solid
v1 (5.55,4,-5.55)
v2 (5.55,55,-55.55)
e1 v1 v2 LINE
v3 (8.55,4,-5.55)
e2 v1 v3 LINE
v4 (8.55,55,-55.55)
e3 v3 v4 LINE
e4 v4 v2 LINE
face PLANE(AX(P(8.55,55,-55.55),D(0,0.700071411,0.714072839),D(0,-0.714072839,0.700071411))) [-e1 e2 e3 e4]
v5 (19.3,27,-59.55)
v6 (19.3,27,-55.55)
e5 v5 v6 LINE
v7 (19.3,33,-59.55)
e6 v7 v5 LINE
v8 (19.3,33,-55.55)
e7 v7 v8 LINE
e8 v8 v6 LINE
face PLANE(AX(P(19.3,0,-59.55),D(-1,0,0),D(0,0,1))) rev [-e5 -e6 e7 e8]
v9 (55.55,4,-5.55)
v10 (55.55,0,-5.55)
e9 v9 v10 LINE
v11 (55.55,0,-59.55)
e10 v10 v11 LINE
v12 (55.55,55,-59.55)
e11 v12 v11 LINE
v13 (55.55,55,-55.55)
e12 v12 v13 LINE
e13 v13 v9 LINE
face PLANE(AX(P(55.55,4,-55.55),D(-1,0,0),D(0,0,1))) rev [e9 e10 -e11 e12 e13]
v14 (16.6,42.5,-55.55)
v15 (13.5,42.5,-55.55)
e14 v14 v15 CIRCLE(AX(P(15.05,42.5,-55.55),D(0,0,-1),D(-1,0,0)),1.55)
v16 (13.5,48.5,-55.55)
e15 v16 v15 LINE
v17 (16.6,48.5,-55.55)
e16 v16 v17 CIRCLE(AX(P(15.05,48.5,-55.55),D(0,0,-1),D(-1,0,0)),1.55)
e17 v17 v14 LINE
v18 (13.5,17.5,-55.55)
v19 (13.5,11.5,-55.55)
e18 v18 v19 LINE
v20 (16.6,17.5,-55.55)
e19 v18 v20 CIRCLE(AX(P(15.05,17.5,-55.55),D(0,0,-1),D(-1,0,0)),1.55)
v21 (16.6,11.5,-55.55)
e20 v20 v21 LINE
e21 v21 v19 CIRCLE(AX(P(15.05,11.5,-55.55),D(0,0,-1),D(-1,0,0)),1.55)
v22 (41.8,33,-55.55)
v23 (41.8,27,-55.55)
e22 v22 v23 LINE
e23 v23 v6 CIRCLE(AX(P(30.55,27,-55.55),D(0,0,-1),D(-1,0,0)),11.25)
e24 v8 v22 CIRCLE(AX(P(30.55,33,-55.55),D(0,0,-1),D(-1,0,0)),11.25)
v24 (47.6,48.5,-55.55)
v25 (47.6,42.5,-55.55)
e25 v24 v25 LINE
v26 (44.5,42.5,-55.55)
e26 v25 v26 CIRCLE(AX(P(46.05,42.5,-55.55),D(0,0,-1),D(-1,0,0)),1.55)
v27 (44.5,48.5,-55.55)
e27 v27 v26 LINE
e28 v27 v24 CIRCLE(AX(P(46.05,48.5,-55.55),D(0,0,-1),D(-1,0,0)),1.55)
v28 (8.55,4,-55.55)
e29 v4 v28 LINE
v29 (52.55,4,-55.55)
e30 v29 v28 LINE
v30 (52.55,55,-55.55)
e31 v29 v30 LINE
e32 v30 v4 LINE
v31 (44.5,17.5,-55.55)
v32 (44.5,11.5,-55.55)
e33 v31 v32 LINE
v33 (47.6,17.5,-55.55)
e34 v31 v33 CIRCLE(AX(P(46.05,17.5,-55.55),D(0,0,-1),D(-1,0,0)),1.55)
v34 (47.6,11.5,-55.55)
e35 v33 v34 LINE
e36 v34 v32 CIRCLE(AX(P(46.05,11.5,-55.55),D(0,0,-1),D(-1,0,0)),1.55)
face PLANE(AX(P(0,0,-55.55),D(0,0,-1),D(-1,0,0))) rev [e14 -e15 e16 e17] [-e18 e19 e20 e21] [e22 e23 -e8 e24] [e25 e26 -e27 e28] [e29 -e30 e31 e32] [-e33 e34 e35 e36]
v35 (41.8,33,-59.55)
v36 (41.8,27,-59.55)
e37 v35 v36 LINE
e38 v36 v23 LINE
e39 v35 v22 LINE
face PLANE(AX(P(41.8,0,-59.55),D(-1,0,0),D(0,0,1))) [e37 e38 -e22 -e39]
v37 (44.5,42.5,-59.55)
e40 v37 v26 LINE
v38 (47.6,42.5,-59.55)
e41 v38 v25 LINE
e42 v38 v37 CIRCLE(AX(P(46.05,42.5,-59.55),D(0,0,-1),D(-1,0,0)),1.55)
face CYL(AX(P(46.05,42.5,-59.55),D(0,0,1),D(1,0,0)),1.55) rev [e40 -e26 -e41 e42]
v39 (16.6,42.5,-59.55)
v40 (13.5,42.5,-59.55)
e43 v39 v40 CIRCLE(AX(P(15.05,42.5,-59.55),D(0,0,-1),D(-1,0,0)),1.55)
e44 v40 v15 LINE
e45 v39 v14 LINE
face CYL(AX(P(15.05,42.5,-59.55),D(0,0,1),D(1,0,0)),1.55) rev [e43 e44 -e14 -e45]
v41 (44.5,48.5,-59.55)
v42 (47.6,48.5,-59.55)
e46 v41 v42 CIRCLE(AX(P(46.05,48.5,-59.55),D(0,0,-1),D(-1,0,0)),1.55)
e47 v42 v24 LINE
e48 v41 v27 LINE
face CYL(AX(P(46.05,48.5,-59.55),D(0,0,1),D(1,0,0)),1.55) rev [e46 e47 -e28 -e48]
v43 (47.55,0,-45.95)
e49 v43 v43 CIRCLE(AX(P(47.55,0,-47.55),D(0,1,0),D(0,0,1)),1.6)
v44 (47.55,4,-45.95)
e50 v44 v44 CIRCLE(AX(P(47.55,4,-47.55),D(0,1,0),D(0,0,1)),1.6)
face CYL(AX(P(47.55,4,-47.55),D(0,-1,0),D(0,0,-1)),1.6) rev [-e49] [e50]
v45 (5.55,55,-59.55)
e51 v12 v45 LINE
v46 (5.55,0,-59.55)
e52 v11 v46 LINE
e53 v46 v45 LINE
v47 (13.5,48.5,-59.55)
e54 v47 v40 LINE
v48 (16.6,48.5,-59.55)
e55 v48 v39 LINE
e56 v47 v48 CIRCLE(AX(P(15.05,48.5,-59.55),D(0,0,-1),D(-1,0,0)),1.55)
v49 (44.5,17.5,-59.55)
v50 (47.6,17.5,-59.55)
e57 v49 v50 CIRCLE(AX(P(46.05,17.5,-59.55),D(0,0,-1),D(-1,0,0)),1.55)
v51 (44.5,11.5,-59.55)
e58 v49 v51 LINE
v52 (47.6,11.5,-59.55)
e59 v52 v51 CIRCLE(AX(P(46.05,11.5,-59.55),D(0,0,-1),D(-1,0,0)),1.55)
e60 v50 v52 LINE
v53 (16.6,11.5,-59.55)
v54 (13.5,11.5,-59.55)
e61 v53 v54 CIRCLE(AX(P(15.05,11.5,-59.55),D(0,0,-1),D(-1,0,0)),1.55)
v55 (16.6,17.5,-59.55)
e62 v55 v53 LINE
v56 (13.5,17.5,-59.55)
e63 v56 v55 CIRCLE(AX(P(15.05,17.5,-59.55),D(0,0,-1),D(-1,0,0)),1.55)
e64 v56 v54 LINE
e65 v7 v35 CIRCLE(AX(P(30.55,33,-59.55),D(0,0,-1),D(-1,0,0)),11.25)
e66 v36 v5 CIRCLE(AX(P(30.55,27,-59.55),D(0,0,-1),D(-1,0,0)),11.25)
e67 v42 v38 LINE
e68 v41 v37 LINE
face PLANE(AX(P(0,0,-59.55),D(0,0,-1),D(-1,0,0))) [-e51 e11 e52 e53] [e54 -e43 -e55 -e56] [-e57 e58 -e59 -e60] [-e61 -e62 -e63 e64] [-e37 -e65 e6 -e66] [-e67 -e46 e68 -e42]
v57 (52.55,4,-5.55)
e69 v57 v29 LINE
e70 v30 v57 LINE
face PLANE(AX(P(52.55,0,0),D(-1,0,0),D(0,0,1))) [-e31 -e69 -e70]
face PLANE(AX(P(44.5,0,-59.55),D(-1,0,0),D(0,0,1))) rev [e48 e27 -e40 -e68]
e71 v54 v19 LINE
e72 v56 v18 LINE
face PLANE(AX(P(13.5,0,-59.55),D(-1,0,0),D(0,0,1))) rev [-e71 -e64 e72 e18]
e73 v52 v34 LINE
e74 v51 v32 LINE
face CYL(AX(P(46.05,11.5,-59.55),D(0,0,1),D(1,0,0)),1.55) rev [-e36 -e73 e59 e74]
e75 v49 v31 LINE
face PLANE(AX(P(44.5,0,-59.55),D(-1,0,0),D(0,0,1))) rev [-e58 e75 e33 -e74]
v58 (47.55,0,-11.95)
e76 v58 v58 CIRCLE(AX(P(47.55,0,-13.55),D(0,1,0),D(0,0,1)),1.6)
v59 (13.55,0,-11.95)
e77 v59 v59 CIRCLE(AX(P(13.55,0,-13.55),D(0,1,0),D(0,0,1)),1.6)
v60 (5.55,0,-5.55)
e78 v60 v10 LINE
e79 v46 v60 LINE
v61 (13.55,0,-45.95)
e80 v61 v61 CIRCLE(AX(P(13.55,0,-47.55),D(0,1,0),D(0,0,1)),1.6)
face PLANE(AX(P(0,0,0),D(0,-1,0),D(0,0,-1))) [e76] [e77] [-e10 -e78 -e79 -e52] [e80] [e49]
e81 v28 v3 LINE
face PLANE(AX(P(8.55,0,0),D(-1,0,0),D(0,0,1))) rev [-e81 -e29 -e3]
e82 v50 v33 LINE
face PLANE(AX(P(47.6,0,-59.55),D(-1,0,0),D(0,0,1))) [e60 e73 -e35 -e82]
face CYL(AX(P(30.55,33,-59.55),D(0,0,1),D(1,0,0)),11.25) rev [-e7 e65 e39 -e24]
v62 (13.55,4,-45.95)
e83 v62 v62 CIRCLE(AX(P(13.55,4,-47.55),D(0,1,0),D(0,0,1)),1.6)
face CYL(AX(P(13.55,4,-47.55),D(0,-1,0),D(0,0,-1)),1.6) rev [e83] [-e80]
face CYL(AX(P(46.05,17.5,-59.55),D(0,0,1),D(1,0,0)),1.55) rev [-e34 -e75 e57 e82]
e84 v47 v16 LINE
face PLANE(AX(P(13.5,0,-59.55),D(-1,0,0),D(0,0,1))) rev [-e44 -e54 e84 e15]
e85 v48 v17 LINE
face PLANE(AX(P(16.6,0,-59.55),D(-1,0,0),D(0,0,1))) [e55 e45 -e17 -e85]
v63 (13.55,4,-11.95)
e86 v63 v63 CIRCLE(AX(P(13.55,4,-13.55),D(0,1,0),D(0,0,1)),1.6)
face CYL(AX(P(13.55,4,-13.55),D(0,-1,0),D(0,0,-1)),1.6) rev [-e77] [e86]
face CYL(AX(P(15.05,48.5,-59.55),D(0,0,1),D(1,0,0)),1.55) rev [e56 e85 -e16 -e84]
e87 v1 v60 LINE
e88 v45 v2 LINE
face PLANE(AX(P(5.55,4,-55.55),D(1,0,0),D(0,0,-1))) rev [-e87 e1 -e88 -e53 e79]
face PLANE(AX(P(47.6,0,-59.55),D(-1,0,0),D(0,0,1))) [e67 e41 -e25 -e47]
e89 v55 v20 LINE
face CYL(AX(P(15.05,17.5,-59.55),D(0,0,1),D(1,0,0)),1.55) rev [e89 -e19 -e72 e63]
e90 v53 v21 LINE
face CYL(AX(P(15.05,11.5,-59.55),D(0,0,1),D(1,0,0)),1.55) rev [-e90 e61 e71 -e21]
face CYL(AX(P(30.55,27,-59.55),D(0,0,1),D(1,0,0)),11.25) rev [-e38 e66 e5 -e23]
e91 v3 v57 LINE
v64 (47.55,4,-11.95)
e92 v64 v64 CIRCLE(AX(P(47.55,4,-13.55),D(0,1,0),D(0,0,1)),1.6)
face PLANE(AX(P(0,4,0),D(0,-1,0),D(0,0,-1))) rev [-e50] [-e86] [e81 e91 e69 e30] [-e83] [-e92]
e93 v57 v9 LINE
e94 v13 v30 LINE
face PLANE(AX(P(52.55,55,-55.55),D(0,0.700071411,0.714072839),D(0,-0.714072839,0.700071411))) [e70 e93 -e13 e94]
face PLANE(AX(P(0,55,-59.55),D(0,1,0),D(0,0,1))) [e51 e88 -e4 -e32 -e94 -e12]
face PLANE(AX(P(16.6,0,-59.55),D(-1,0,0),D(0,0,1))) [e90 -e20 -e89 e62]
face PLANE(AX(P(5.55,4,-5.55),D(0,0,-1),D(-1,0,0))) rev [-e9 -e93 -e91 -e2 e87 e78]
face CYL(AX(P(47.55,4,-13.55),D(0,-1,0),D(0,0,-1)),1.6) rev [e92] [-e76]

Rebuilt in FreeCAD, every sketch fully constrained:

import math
import FreeCAD as App
import Part
import Sketcher

V = App.Vector

doc = App.newDocument("Part")
body = doc.addObject("PartDesign::Body", "Body")

# Sketch on XZ plane
sketch1 = body.newObject("Sketcher::SketchObject", "Sketch")
sketch1.AttachmentSupport = (doc.getObject("XZ_Plane"), [""])
sketch1.MapMode = "FlatFace"
sketch1.addGeometry([
    Part.LineSegment(V(5.5, -55.5, 0), V(5.5, -5.5, 0)),  # 0
    Part.LineSegment(V(5.5, -5.5, 0), V(55.5, -5.5, 0)),  # 1
    Part.LineSegment(V(55.5, -5.5, 0), V(55.5, -55.5, 0)),  # 2
    Part.LineSegment(V(55.5, -55.5, 0), V(5.5, -55.5, 0)),  # 3
    Part.Circle(V(13.6, -13.6, 0), V(0, 0, 1), 1.6),  # 4
    Part.Circle(V(47.5, -13.6, 0), V(0, 0, 1), 1.6),  # 5
    Part.Circle(V(13.6, -47.5, 0), V(0, 0, 1), 1.6),  # 6
    Part.Circle(V(47.5, -47.5, 0), V(0, 0, 1), 1.6),  # 7
], False)
sketch1.addConstraint([
    Sketcher.Constraint("Coincident", 0, 2, 1, 1),
    Sketcher.Constraint("Coincident", 1, 2, 2, 1),
    Sketcher.Constraint("Coincident", 2, 2, 3, 1),
    Sketcher.Constraint("Coincident", 3, 2, 0, 1),
    Sketcher.Constraint("Vertical", 0),
    Sketcher.Constraint("Horizontal", 1),
    Sketcher.Constraint("Vertical", 2),
    Sketcher.Constraint("Horizontal", 3),
    Sketcher.Constraint("Equal", 4, 5),
    Sketcher.Constraint("Equal", 5, 6),
    Sketcher.Constraint("Equal", 6, 7),
    Sketcher.Constraint("Horizontal", 4, 3, 5, 3),
    Sketcher.Constraint("Horizontal", 6, 3, 7, 3),
    Sketcher.Constraint("Vertical", 4, 3, 6, 3),
    Sketcher.Constraint("Vertical", 5, 3, 7, 3),
    Sketcher.Constraint("Equal", 3, 0),
    Sketcher.Constraint("Diameter", 4, 3.2),
    Sketcher.Constraint("DistanceX", 1, 1, 1, 2, 50.0),
    Sketcher.Constraint("DistanceX", 4, 3, 5, 3, 34.0),
    Sketcher.Constraint("DistanceY", 6, 3, 4, 3, 34.0),
    Sketcher.Constraint("DistanceX", 0, 2, 4, 3, 8.0),
    Sketcher.Constraint("DistanceY", 4, 3, 0, 2, 8.0),
    Sketcher.Constraint("DistanceX", -1, 1, 4, 3, 13.55),
    Sketcher.Constraint("DistanceY", 4, 3, -1, 1, 13.55),
])
pad1 = body.newObject("PartDesign::Pad", "Pad")
pad1.Profile = sketch1
pad1.Length = 4
pad1.Reversed = True

# Sketch on XY plane
sketch2 = body.newObject("Sketcher::SketchObject", "Sketch001")
sketch2.AttachmentSupport = (doc.getObject("XY_Plane"), [""])
sketch2.MapMode = "FlatFace"
sketch2.AttachmentOffset = App.Placement(V(0, 0, -55.55), App.Rotation())
sketch2.addGeometry([
    Part.LineSegment(V(55.5, 55, 0), V(55.5, 0, 0)),  # 0
    Part.LineSegment(V(55.5, 0, 0), V(5.5, 0, 0)),  # 1
    Part.LineSegment(V(5.5, 0, 0), V(5.5, 55, 0)),  # 2
    Part.LineSegment(V(5.5, 55, 0), V(55.5, 55, 0)),  # 3
    Part.ArcOfCircle(Part.Circle(V(15.1, 17.5, 0), V(0, 0, 1), 1.6), math.radians(0), math.radians(180)),  # 4
    Part.LineSegment(V(13.5, 17.5, 0), V(13.5, 11.5, 0)),  # 5
    Part.ArcOfCircle(Part.Circle(V(15.1, 11.5, 0), V(0, 0, 1), 1.6), math.radians(180), math.radians(360)),  # 6
    Part.LineSegment(V(16.6, 11.5, 0), V(16.6, 17.5, 0)),  # 7
    Part.ArcOfCircle(Part.Circle(V(46, 17.5, 0), V(0, 0, 1), 1.6), math.radians(0), math.radians(180)),  # 8
    Part.LineSegment(V(44.5, 17.5, 0), V(44.5, 11.5, 0)),  # 9
    Part.ArcOfCircle(Part.Circle(V(46, 11.5, 0), V(0, 0, 1), 1.6), math.radians(180), math.radians(360)),  # 10
    Part.LineSegment(V(47.6, 11.5, 0), V(47.6, 17.5, 0)),  # 11
    Part.ArcOfCircle(Part.Circle(V(30.6, 33, 0), V(0, 0, 1), 11.2), math.radians(0), math.radians(180)),  # 12
    Part.LineSegment(V(19.3, 33, 0), V(19.3, 27, 0)),  # 13
    Part.ArcOfCircle(Part.Circle(V(30.6, 27, 0), V(0, 0, 1), 11.2), math.radians(180), math.radians(360)),  # 14
    Part.LineSegment(V(41.8, 27, 0), V(41.8, 33, 0)),  # 15
    Part.ArcOfCircle(Part.Circle(V(15.1, 48.5, 0), V(0, 0, 1), 1.6), math.radians(0), math.radians(180)),  # 16
    Part.LineSegment(V(13.5, 48.5, 0), V(13.5, 42.5, 0)),  # 17
    Part.ArcOfCircle(Part.Circle(V(15.1, 42.5, 0), V(0, 0, 1), 1.6), math.radians(180), math.radians(360)),  # 18
    Part.LineSegment(V(16.6, 42.5, 0), V(16.6, 48.5, 0)),  # 19
    Part.ArcOfCircle(Part.Circle(V(46, 48.5, 0), V(0, 0, 1), 1.6), math.radians(0), math.radians(180)),  # 20
    Part.LineSegment(V(44.5, 48.5, 0), V(44.5, 42.5, 0)),  # 21
    Part.ArcOfCircle(Part.Circle(V(46, 42.5, 0), V(0, 0, 1), 1.6), math.radians(180), math.radians(360)),  # 22
    Part.LineSegment(V(47.6, 42.5, 0), V(47.6, 48.5, 0)),  # 23
], False)
sketch2.addConstraint([
    Sketcher.Constraint("Coincident", 0, 2, 1, 1),
    Sketcher.Constraint("Coincident", 1, 2, 2, 1),
    Sketcher.Constraint("Coincident", 2, 2, 3, 1),
    Sketcher.Constraint("Coincident", 3, 2, 0, 1),
    Sketcher.Constraint("Tangent", 4, 2, 5, 1),
    Sketcher.Constraint("Tangent", 5, 2, 6, 1),
    Sketcher.Constraint("Tangent", 6, 2, 7, 1),
    Sketcher.Constraint("Tangent", 7, 2, 4, 1),
    Sketcher.Constraint("Tangent", 8, 2, 9, 1),
    Sketcher.Constraint("Tangent", 9, 2, 10, 1),
    Sketcher.Constraint("Tangent", 10, 2, 11, 1),
    Sketcher.Constraint("Tangent", 11, 2, 8, 1),
    Sketcher.Constraint("Tangent", 12, 2, 13, 1),
    Sketcher.Constraint("Tangent", 13, 2, 14, 1),
    Sketcher.Constraint("Tangent", 14, 2, 15, 1),
    Sketcher.Constraint("Tangent", 15, 2, 12, 1),
    Sketcher.Constraint("Tangent", 16, 2, 17, 1),
    Sketcher.Constraint("Tangent", 17, 2, 18, 1),
    Sketcher.Constraint("Tangent", 18, 2, 19, 1),
    Sketcher.Constraint("Tangent", 19, 2, 16, 1),
    Sketcher.Constraint("Tangent", 20, 2, 21, 1),
    Sketcher.Constraint("Tangent", 21, 2, 22, 1),
    Sketcher.Constraint("Tangent", 22, 2, 23, 1),
    Sketcher.Constraint("Tangent", 23, 2, 20, 1),
    Sketcher.Constraint("Vertical", 0),
    Sketcher.Constraint("Horizontal", 1),
    Sketcher.Constraint("Vertical", 2),
    Sketcher.Constraint("Horizontal", 3),
    Sketcher.Constraint("Vertical", 5),
    Sketcher.Constraint("Vertical", 7),
    Sketcher.Constraint("Vertical", 9),
    Sketcher.Constraint("Vertical", 11),
    Sketcher.Constraint("Vertical", 13),
    Sketcher.Constraint("Vertical", 15),
    Sketcher.Constraint("Vertical", 17),
    Sketcher.Constraint("Vertical", 19),
    Sketcher.Constraint("Vertical", 21),
    Sketcher.Constraint("Vertical", 23),
    Sketcher.Constraint("Equal", 6, 8),
    Sketcher.Constraint("Equal", 10, 16),
    Sketcher.Constraint("Equal", 18, 20),
    Sketcher.Constraint("PointOnObject", 0, 2, -1),
    Sketcher.Constraint("Horizontal", 4, 3, 8, 3),
    Sketcher.Constraint("Horizontal", 6, 3, 10, 3),
    Sketcher.Constraint("Horizontal", 16, 3, 20, 3),
    Sketcher.Constraint("Horizontal", 18, 3, 22, 3),
    Sketcher.Constraint("Vertical", 6, 3, 16, 3),
    Sketcher.Constraint("Vertical", 10, 3, 20, 3),
    Sketcher.Constraint("Equal", 11, 13),
    Sketcher.Constraint("Equal", 15, 17),
    Sketcher.Constraint("DistanceX", 1, 2, 1, 1, 50.0),
    Sketcher.Constraint("DistanceY", 0, 2, 0, 1, 55.0),
    Sketcher.Constraint("DistanceY", 5, 2, 5, 1, 6.0),
    Sketcher.Constraint("Radius", 4, 1.55),
    Sketcher.Constraint("Radius", 12, 11.25),
    Sketcher.Constraint("DistanceY", -1, 1, 12, 3, 33.0),
    Sketcher.Constraint("DistanceX", 4, 3, 8, 3, 31.0),
    Sketcher.Constraint("DistanceY", 4, 3, 16, 3, 31.0),
    Sketcher.Constraint("DistanceX", 14, 3, 0, 2, 25.0),
    Sketcher.Constraint("DistanceY", -1, 1, 4, 3, 17.5),
    Sketcher.Constraint("DistanceX", -1, 1, 4, 2, 13.5),
    Sketcher.Constraint("DistanceX", -1, 1, 12, 2, 19.3),
])
pad2 = body.newObject("PartDesign::Pad", "Pad001")
pad2.Profile = sketch2
pad2.Length = 4
pad2.Reversed = True

# Sketch on YZ plane
sketch3 = body.newObject("Sketcher::SketchObject", "Sketch002")
sketch3.AttachmentSupport = (doc.getObject("YZ_Plane"), [""])
sketch3.MapMode = "FlatFace"
sketch3.AttachmentOffset = App.Placement(V(0, 0, 55.55), App.Rotation())
sketch3.addGeometry([
    Part.LineSegment(V(55, -56, 0), V(4, -6, 0)),
    Part.LineSegment(V(4, -6, 0), V(4, -56, 0)),
    Part.LineSegment(V(4, -56, 0), V(55, -56, 0)),
], False)
sketch3.addConstraint([
    Sketcher.Constraint("Coincident", 0, 2, 1, 1),
    Sketcher.Constraint("Coincident", 1, 2, 2, 1),
    Sketcher.Constraint("Coincident", 2, 2, 0, 1),
    Sketcher.Constraint("Vertical", 1),
    Sketcher.Constraint("Horizontal", 2),
    Sketcher.Constraint("DistanceX", 2, 1, 2, 2, 51.0),
    Sketcher.Constraint("DistanceY", 1, 2, 1, 1, 50.0),
    Sketcher.Constraint("DistanceX", -1, 1, 0, 2, 4.0),
    Sketcher.Constraint("DistanceY", 0, 2, -1, 1, 5.55),
])
pad3 = body.newObject("PartDesign::Pad", "Pad002")
pad3.Profile = sketch3
pad3.Length = 3
pad3.Reversed = True

# Sketch on YZ plane
sketch4 = body.newObject("Sketcher::SketchObject", "Sketch003")
sketch4.AttachmentSupport = (doc.getObject("YZ_Plane"), [""])
sketch4.MapMode = "FlatFace"
sketch4.AttachmentOffset = App.Placement(V(0, 0, 5.55), App.Rotation())
sketch4.addGeometry([
    Part.LineSegment(V(4, -6, 0), V(55, -56, 0)),
    Part.LineSegment(V(55, -56, 0), V(4, -56, 0)),
    Part.LineSegment(V(4, -56, 0), V(4, -6, 0)),
], False)
sketch4.addConstraint([
    Sketcher.Constraint("Coincident", 0, 2, 1, 1),
    Sketcher.Constraint("Coincident", 1, 2, 2, 1),
    Sketcher.Constraint("Coincident", 2, 2, 0, 1),
    Sketcher.Constraint("Horizontal", 1),
    Sketcher.Constraint("Vertical", 2),
    Sketcher.Constraint("DistanceX", 1, 2, 1, 1, 51.0),
    Sketcher.Constraint("DistanceY", 2, 1, 2, 2, 50.0),
    Sketcher.Constraint("DistanceX", -1, 1, 0, 2, 55.0),
    Sketcher.Constraint("DistanceY", 0, 2, -1, 1, 55.55),
])
pad4 = body.newObject("PartDesign::Pad", "Pad003")
pad4.Profile = sketch4
pad4.Length = 3

doc.recompute()
